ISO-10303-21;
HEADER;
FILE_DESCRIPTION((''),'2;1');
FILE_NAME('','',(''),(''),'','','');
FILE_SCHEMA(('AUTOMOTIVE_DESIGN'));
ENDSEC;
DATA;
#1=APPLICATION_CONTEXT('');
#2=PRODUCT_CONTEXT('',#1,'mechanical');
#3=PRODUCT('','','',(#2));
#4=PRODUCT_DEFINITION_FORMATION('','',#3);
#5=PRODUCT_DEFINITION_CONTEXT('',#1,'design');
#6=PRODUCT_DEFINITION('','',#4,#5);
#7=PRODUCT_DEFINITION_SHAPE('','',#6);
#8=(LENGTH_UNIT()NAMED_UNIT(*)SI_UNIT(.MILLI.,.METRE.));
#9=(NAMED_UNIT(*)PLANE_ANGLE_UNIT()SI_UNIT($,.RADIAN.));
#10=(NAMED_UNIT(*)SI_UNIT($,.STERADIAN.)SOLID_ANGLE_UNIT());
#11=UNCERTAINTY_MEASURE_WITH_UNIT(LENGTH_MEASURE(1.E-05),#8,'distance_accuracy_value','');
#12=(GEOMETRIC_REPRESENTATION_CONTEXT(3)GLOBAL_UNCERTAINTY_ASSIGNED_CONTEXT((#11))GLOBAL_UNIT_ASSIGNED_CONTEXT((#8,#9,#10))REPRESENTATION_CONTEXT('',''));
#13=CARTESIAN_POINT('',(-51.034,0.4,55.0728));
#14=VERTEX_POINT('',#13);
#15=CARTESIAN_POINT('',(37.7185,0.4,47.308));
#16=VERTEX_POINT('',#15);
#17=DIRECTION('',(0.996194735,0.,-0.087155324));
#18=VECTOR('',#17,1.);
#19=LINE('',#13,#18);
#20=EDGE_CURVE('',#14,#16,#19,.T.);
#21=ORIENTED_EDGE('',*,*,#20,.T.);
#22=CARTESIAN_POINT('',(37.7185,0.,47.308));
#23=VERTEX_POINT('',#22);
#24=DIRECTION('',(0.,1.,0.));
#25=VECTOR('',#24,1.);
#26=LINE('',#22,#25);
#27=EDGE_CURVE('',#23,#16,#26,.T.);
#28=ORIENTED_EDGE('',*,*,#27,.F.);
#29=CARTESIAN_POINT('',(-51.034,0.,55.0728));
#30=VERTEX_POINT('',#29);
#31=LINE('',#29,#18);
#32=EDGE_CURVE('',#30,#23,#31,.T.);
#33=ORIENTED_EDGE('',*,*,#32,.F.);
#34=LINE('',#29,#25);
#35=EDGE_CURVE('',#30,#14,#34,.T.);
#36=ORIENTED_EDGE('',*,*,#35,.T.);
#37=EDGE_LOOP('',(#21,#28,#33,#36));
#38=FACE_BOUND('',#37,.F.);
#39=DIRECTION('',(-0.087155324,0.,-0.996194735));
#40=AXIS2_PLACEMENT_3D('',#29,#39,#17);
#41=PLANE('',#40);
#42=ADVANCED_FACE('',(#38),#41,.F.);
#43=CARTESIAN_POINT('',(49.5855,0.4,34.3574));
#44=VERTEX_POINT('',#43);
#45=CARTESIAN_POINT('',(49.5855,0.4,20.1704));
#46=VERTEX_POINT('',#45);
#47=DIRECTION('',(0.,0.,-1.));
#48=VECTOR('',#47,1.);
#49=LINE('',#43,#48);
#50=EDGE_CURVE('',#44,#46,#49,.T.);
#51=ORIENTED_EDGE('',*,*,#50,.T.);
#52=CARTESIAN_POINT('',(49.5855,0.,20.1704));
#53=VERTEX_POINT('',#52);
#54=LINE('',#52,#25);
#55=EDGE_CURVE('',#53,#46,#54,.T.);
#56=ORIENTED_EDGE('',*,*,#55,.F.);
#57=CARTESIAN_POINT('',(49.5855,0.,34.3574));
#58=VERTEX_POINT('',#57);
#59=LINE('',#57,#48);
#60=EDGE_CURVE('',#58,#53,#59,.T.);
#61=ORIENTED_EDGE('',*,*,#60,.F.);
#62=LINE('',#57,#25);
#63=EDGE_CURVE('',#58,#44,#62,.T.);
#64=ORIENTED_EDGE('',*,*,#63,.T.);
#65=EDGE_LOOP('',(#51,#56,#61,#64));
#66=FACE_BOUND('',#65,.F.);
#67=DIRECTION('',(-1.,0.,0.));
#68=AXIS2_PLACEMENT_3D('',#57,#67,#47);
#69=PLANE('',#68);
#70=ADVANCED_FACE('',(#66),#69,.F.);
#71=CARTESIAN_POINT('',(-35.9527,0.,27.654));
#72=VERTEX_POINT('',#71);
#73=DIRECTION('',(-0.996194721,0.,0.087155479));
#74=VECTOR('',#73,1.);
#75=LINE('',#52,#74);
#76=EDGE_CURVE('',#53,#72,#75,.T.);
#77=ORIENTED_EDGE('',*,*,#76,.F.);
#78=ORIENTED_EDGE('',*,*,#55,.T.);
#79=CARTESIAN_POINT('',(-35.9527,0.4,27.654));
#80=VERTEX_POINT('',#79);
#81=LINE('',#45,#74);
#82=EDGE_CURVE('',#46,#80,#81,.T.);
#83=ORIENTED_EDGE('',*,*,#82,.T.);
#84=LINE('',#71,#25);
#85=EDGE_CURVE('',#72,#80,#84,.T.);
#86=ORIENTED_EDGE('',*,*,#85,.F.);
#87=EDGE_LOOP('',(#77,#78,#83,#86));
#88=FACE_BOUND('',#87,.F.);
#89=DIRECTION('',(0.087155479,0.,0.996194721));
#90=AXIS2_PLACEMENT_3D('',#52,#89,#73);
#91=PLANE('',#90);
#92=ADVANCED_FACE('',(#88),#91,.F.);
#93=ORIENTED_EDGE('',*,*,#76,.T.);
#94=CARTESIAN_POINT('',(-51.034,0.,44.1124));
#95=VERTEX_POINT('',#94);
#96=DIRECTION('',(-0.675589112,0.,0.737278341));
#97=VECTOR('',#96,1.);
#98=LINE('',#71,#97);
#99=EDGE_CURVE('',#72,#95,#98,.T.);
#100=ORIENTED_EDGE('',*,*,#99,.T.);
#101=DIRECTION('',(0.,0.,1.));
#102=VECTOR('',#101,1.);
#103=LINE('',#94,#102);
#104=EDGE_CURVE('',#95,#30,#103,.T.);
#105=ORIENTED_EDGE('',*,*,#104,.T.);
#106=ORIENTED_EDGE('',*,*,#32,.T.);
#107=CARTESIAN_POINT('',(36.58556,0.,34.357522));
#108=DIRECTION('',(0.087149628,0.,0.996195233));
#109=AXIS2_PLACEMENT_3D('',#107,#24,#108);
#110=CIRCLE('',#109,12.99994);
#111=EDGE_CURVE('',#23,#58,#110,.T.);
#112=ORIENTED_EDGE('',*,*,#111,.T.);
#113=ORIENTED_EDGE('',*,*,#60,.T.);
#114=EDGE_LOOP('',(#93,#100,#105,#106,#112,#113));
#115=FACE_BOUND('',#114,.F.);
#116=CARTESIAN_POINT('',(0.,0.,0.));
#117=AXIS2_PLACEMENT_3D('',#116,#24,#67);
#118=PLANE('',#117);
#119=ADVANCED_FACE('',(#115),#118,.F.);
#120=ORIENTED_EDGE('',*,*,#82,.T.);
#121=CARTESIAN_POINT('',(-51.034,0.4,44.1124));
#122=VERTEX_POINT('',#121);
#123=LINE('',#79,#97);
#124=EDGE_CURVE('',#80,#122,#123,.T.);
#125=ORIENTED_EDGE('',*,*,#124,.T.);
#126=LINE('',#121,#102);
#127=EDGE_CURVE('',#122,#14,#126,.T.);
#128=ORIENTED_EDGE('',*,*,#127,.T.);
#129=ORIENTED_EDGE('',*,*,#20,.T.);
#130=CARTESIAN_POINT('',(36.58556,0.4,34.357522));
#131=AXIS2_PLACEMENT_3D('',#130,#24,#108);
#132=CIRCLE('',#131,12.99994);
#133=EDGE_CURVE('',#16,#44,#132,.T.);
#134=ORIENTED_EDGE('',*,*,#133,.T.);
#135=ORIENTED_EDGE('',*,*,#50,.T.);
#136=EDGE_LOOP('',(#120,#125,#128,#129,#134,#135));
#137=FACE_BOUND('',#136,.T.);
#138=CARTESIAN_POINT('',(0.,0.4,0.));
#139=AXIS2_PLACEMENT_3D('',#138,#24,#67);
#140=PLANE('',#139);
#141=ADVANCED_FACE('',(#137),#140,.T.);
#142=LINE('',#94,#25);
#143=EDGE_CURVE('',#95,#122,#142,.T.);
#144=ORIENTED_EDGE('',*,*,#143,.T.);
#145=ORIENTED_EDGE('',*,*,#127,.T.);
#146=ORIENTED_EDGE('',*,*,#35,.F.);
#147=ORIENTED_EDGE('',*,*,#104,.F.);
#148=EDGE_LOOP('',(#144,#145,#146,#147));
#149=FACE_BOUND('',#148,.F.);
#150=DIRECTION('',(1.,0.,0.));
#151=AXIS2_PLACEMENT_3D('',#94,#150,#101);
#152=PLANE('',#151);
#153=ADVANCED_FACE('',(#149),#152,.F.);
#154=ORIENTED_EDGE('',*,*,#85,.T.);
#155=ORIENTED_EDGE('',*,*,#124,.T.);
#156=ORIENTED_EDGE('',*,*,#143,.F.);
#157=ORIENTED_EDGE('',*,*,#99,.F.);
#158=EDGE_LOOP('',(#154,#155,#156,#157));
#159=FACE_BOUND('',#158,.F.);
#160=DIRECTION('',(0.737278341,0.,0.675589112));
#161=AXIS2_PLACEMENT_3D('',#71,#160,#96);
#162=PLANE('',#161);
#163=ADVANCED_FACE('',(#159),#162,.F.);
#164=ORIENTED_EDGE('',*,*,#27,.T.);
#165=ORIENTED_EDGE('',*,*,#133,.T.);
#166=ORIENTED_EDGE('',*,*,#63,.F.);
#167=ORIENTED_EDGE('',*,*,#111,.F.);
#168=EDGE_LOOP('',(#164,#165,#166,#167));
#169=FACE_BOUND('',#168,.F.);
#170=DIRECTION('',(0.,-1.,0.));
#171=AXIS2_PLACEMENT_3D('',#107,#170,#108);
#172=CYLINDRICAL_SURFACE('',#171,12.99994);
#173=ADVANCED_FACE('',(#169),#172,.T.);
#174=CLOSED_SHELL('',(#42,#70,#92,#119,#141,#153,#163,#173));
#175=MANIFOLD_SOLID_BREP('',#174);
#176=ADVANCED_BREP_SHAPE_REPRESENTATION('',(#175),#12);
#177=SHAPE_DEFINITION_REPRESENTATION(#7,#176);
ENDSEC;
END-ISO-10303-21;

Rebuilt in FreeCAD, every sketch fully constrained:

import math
import FreeCAD as App
import Part
import Sketcher

V = App.Vector
Q = App.Units.Quantity

doc = App.newDocument("Part")
body = doc.addObject("PartDesign::Body", "Body")

# Sketch on XZ plane
sketch1 = doc.addObject("Sketcher::SketchObject", "Sketch")
body.addObject(sketch1)
sketch1.AttachmentSupport = (doc.XZ_Plane, [""])
sketch1.MapMode = "FlatFace"
sketch1.addGeometry(Part.LineSegment(V(50, 20, 0), V(-36, 28, 0)), False)
sketch1.addGeometry(Part.LineSegment(V(-36, 28, 0), V(-51, 44, 0)), False)
sketch1.addGeometry(Part.LineSegment(V(-51, 44, 0), V(-51, 55, 0)), False)
sketch1.addGeometry(Part.LineSegment(V(-51, 55, 0), V(38, 47, 0)), False)
sketch1.addGeometry(Part.ArcOfCircle(Part.Circle(V(37, 34, 0), V(0, 0, 1), 13), math.radians(0), math.radians(85)), False)
sketch1.addGeometry(Part.LineSegment(V(50, 34, 0), V(50, 20, 0)), False)
sketch1.addConstraint(Sketcher.Constraint("Coincident", 0, 2, 1, 1))
sketch1.addConstraint(Sketcher.Constraint("Coincident", 1, 2, 2, 1))
sketch1.addConstraint(Sketcher.Constraint("Coincident", 2, 2, 3, 1))
sketch1.addConstraint(Sketcher.Constraint("Tangent", 3, 2, 4, 2))
sketch1.addConstraint(Sketcher.Constraint("Tangent", 4, 1, 5, 1))
sketch1.addConstraint(Sketcher.Constraint("Coincident", 5, 2, 0, 1))
sketch1.addConstraint(Sketcher.Constraint("Vertical", 2))
sketch1.addConstraint(Sketcher.Constraint("Vertical", 5))
sketch1.addConstraint(Sketcher.Constraint("Parallel", 0, 3))
sketch1.addConstraint(Sketcher.Constraint("Radius", 4, Q("13 mm")))
sketch1.addConstraint(Sketcher.Constraint("Angle", 0, Q("175 deg")))
sketch1.addConstraint(Sketcher.Constraint("Angle", 1, Q("132.5 deg")))
sketch1.addConstraint(Sketcher.Constraint("DistanceY", 5, 2, 5, 1, Q("14.187 mm")))
sketch1.addConstraint(Sketcher.Constraint("Distance", 0, Q("85.865 mm")))
sketch1.addConstraint(Sketcher.Constraint("DistanceY", 2, 1, 2, 2, Q("10.9604 mm")))
sketch1.addConstraint(Sketcher.Constraint("DistanceY", -1, 1, 0, 2, Q("27.654 mm")))
sketch1.addConstraint(Sketcher.Constraint("DistanceX", 1, 2, -1, 1, Q("51.034 mm")))
pad1 = doc.addObject("PartDesign::Pad", "Pad")
body.addObject(pad1)
pad1.Profile = sketch1
pad1.Length = 0.4
pad1.Reversed = True

doc.recompute()
